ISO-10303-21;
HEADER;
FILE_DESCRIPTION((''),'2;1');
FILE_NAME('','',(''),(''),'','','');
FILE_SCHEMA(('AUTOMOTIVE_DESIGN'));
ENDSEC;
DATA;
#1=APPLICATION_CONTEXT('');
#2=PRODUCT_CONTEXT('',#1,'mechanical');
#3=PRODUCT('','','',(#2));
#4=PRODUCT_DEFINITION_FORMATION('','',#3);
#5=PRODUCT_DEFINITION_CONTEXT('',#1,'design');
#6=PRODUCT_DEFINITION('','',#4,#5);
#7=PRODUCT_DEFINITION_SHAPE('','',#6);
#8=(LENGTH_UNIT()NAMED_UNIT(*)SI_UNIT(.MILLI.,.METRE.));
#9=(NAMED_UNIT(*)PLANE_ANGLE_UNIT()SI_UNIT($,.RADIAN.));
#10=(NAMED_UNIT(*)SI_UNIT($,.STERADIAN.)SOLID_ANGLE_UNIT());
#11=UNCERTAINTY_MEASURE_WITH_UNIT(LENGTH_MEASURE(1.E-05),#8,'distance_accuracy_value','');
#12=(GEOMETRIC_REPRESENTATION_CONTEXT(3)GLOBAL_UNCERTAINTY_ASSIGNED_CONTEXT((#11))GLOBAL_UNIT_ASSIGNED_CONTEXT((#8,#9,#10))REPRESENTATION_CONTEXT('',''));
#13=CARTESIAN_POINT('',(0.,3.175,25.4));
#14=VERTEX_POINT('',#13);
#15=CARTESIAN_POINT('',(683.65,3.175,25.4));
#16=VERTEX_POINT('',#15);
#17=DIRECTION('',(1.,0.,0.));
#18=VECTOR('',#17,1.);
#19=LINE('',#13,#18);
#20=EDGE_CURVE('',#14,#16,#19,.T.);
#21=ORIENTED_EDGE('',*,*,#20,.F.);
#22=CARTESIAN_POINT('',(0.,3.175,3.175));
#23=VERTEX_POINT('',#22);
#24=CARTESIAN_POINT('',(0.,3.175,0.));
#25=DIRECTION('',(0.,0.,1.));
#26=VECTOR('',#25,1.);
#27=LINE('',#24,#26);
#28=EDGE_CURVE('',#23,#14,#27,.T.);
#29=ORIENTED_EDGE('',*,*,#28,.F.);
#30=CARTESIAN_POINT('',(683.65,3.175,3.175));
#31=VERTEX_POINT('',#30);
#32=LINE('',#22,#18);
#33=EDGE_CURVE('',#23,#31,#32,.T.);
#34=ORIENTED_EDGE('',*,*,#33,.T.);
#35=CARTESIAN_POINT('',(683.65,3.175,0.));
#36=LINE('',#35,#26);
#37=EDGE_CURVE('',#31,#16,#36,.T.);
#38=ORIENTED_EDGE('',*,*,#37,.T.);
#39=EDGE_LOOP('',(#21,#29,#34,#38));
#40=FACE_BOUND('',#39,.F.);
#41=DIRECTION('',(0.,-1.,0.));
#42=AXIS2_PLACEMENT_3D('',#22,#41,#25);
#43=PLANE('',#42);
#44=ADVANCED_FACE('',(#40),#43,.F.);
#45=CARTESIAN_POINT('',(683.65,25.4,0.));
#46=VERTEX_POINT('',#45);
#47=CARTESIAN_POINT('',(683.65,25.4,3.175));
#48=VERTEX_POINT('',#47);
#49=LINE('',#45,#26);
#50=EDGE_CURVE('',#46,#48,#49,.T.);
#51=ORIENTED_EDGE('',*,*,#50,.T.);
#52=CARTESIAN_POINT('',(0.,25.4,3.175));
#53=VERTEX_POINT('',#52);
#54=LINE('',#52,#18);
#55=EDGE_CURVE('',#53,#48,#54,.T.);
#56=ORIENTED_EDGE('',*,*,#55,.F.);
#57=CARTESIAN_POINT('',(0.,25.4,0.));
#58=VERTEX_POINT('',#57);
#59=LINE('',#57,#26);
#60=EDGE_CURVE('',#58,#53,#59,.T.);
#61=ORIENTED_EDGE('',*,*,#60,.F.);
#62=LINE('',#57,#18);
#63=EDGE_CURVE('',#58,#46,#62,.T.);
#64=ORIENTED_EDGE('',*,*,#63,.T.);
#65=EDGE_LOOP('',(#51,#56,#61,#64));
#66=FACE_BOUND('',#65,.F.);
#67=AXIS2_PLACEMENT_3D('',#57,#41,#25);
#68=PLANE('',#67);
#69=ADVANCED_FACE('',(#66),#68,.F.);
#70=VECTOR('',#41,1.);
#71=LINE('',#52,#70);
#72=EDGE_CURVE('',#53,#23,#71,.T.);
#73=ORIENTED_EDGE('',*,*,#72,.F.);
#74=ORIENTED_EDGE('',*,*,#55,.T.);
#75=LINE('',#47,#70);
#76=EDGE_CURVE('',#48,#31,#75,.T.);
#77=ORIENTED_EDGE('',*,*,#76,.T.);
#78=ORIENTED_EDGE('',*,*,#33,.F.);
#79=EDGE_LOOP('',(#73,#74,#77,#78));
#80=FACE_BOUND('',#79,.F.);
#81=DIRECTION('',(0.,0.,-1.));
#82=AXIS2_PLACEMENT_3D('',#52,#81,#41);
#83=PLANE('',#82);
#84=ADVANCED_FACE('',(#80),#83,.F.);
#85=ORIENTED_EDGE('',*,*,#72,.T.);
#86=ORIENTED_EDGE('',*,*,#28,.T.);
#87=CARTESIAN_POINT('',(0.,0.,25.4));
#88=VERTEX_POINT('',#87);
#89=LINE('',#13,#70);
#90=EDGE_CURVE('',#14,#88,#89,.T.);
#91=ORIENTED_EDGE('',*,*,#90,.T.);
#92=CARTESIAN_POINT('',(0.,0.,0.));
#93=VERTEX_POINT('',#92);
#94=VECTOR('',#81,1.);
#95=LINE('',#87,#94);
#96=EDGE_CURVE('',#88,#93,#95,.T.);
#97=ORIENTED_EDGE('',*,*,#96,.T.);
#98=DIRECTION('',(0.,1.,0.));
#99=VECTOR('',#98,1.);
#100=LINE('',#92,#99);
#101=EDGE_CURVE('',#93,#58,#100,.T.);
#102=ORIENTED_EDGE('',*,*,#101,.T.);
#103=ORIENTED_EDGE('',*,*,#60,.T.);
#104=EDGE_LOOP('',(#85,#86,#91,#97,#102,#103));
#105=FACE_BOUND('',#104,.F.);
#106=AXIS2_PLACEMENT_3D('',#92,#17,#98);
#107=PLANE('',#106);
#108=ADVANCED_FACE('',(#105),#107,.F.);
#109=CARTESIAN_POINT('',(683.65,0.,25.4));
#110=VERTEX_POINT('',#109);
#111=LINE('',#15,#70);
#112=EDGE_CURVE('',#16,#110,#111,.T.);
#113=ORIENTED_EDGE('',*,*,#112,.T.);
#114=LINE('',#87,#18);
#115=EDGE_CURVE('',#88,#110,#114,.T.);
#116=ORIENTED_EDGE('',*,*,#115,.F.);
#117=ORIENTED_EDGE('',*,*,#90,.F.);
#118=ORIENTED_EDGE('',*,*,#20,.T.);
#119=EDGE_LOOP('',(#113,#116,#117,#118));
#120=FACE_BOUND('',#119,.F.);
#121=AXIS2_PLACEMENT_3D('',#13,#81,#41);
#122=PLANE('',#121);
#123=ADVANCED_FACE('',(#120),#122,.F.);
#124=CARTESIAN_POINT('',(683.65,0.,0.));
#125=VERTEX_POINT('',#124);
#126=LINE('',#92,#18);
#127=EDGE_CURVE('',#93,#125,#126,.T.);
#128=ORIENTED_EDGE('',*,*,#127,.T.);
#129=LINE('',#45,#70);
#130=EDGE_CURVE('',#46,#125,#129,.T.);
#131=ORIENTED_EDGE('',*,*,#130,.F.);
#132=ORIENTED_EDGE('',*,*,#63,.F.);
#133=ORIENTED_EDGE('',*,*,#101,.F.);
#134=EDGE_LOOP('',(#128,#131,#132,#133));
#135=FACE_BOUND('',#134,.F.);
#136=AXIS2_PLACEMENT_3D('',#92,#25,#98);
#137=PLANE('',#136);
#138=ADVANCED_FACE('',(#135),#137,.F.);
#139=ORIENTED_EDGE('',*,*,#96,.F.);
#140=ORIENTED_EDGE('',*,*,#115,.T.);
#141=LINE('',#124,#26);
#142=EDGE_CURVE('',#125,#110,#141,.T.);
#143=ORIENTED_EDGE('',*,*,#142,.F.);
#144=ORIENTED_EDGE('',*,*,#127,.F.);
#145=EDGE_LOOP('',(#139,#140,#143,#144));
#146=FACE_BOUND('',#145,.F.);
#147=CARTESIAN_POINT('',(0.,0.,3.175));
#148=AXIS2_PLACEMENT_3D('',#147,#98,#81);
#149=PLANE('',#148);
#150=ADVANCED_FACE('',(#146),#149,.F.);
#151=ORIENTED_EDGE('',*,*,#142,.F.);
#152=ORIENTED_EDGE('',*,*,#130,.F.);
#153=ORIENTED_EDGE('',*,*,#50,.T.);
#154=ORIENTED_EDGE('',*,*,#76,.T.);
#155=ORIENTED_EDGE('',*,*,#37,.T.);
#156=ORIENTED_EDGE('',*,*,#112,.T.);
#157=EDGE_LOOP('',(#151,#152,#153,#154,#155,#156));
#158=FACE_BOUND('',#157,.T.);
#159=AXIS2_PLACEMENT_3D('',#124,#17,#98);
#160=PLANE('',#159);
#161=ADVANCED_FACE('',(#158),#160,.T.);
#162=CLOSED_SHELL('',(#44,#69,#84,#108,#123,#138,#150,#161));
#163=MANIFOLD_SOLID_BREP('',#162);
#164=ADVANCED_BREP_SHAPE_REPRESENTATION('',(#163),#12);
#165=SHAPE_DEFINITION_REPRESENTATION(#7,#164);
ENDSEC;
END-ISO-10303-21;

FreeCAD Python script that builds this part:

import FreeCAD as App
import Part
import Sketcher
Q = App.Units.Quantity

doc = App.newDocument("Part")
body = doc.addObject("PartDesign::Body", "Body")

sketch1 = body.newObject("Sketcher::SketchObject", "Sketch")
sketch1.AttachmentSupport = (doc.getObject("YZ_Plane"), [""])
sketch1.MapMode = "FlatFace"
sketch1.addGeometry(Part.LineSegment(App.Vector(0, 0, 0), App.Vector(25.4, 0, 0)), False)
sketch1.addGeometry(Part.LineSegment(App.Vector(25.4, 0, 0), App.Vector(25.4, 3.175, 0)), False)
sketch1.addGeometry(Part.LineSegment(App.Vector(25.4, 3.175, 0), App.Vector(3.175, 3.175, 0)), False)
sketch1.addGeometry(Part.LineSegment(App.Vector(3.175, 3.175, 0), App.Vector(3.175, 25.4, 0)), False)
sketch1.addGeometry(Part.LineSegment(App.Vector(3.175, 25.4, 0), App.Vector(0, 25.4, 0)), False)
sketch1.addGeometry(Part.LineSegment(App.Vector(0, 25.4, 0), App.Vector(0, 0, 0)), False)
sketch1.addConstraint(Sketcher.Constraint("Coincident", 0, 2, 1, 1))
sketch1.addConstraint(Sketcher.Constraint("Coincident", 1, 2, 2, 1))
sketch1.addConstraint(Sketcher.Constraint("Coincident", 2, 2, 3, 1))
sketch1.addConstraint(Sketcher.Constraint("Coincident", 3, 2, 4, 1))
sketch1.addConstraint(Sketcher.Constraint("Coincident", 4, 2, 5, 1))
sketch1.addConstraint(Sketcher.Constraint("Coincident", 5, 2, 0, 1))
sketch1.addConstraint(Sketcher.Constraint("Horizontal", 0))
sketch1.addConstraint(Sketcher.Constraint("Vertical", 1))
sketch1.addConstraint(Sketcher.Constraint("Horizontal", 2))
sketch1.addConstraint(Sketcher.Constraint("Vertical", 3))
sketch1.addConstraint(Sketcher.Constraint("Horizontal", 4))
sketch1.addConstraint(Sketcher.Constraint("Vertical", 5))
sketch1.addConstraint(Sketcher.Constraint("Coincident", 5, 2, -1, 1))
sketch1.addConstraint(Sketcher.Constraint("Equal", 4, 1))
sketch1.addConstraint(Sketcher.Constraint("Equal", 2, 3))
sketch1.addConstraint(Sketcher.Constraint("DistanceX", 0, 1, 0, 2, Q("1 in")))
sketch1.addConstraint(Sketcher.Constraint("DistanceX", 4, 2, 4, 1, Q("0.125 in")))
pad1 = body.newObject("PartDesign::Pad", "Pad")
pad1.Profile = sketch1
pad1.Length = 683.65

doc.recompute()
